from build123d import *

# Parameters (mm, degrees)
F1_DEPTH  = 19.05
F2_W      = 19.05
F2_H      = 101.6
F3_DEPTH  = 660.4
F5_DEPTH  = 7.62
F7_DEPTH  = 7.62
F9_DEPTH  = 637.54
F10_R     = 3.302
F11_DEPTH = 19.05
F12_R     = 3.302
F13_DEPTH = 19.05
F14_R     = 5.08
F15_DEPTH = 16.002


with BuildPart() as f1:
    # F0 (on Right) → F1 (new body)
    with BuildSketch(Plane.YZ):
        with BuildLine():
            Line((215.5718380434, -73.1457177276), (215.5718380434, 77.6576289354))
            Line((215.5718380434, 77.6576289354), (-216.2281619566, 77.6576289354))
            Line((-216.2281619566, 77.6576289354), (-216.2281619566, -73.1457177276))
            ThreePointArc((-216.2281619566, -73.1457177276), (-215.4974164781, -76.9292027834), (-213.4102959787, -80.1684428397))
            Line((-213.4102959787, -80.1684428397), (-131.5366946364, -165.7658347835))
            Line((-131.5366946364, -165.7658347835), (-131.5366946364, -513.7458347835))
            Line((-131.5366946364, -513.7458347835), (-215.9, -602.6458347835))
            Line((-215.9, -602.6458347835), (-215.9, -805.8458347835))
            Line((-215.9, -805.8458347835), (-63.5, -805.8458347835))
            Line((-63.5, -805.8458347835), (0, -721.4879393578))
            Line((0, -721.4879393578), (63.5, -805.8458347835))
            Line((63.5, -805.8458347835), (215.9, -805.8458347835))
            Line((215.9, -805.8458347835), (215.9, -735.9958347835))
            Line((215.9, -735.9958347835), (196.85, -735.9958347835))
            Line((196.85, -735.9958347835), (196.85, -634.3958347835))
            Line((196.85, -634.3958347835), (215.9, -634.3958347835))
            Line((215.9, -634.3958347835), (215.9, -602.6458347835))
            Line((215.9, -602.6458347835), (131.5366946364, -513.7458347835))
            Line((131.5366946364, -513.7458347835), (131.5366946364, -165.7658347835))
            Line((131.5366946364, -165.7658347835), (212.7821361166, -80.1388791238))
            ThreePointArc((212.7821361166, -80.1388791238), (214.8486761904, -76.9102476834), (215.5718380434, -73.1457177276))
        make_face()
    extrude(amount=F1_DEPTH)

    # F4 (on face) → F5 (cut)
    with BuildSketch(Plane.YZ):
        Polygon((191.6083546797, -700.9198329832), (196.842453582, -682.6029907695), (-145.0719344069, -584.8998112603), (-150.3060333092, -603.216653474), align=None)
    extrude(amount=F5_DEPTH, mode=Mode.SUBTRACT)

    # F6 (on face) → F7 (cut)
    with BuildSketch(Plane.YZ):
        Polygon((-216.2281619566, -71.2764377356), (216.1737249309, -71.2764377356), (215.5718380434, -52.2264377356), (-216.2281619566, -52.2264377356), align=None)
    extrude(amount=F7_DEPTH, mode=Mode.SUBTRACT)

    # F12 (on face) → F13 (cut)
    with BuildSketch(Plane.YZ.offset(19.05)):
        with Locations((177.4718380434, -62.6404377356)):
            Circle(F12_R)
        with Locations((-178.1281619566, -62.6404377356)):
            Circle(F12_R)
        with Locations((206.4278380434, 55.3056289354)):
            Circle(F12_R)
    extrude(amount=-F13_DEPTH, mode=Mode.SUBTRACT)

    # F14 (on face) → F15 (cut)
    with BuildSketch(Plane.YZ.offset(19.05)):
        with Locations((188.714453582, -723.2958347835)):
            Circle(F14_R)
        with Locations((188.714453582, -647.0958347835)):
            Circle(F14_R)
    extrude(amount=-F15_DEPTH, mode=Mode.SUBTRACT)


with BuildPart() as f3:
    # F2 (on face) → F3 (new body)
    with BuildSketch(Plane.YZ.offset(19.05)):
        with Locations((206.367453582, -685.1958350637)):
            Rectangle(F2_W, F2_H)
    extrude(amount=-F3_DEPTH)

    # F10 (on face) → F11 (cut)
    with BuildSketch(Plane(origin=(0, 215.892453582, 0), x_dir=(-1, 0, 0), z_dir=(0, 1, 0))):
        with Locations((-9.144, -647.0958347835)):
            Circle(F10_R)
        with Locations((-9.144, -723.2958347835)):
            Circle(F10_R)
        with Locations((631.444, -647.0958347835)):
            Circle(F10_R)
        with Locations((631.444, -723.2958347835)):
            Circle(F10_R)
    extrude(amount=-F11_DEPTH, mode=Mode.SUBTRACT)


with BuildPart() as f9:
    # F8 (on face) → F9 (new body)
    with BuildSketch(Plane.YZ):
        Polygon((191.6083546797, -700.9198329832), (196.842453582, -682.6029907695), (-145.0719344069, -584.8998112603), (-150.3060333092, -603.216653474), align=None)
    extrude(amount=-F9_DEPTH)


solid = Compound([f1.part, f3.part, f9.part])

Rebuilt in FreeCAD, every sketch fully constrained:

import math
import FreeCAD as App
import Part
import Sketcher

V = App.Vector
Q = App.Units.Quantity

doc = App.newDocument("Part")
body = doc.addObject("PartDesign::Body", "Body")

sketch1 = body.newObject("Sketcher::SketchObject", "Sketch")
sketch1.AttachmentSupport = (doc.getObject("YZ_Plane"), [""])
sketch1.MapMode = "FlatFace"
sketch1.addGeometry(Part.LineSegment(V(215.571838, -73.145718, 0), V(215.571838, 77.657629, 0)), False)
sketch1.addGeometry(Part.LineSegment(V(215.571838, 77.657629, 0), V(-216.228162, 77.657629, 0)), False)
sketch1.addGeometry(Part.LineSegment(V(-216.228162, 77.657629, 0), V(-216.228162, -73.145718, 0)), False)
sketch1.addGeometry(Part.ArcOfCircle(Part.Circle(V(-206.068162, -73.145718, 0), V(0, 0, 1), 10.16), math.radians(-180), math.radians(-136.273787)), False)
sketch1.addGeometry(Part.LineSegment(V(-213.410296, -80.168443, 0), V(-131.536695, -165.765835, 0)), False)
sketch1.addGeometry(Part.LineSegment(V(-131.536695, -165.765835, 0), V(-131.536695, -513.745835, 0)), False)
sketch1.addGeometry(Part.LineSegment(V(-131.536695, -513.745835, 0), V(-215.9, -602.645835, 0)), False)
sketch1.addGeometry(Part.LineSegment(V(-215.9, -602.645835, 0), V(-215.9, -805.845835, 0)), False)
sketch1.addGeometry(Part.LineSegment(V(-215.9, -805.845835, 0), V(-63.5, -805.845835, 0)), False)
sketch1.addGeometry(Part.LineSegment(V(-63.5, -805.845835, 0), V(0, -721.487939, 0)), False)
sketch1.addGeometry(Part.LineSegment(V(0, -721.487939, 0), V(63.5, -805.845835, 0)), False)
sketch1.addGeometry(Part.LineSegment(V(63.5, -805.845835, 0), V(215.9, -805.845835, 0)), False)
sketch1.addGeometry(Part.LineSegment(V(215.9, -805.845835, 0), V(215.9, -735.995835, 0)), False)
sketch1.addGeometry(Part.LineSegment(V(215.9, -735.995835, 0), V(196.85, -735.995835, 0)), False)
sketch1.addGeometry(Part.LineSegment(V(196.85, -735.995835, 0), V(196.85, -634.395835, 0)), False)
sketch1.addGeometry(Part.LineSegment(V(196.85, -634.395835, 0), V(215.9, -634.395835, 0)), False)
sketch1.addGeometry(Part.LineSegment(V(215.9, -634.395835, 0), V(215.9, -602.645835, 0)), False)
sketch1.addGeometry(Part.LineSegment(V(215.9, -602.645835, 0), V(131.536695, -513.745835, 0)), False)
sketch1.addGeometry(Part.LineSegment(V(131.536695, -513.745835, 0), V(131.536695, -165.765835, 0)), False)
sketch1.addGeometry(Part.LineSegment(V(131.536695, -165.765835, 0), V(212.782136, -80.138879, 0)), False)
sketch1.addGeometry(Part.ArcOfCircle(Part.Circle(V(205.411838, -73.145718, 0), V(0, 0, 1), 10.16), math.radians(-43.495949), math.radians(0)), False)
sketch1.addConstraint(Sketcher.Constraint("Coincident", 0, 2, 1, 1))
sketch1.addConstraint(Sketcher.Constraint("Coincident", 1, 2, 2, 1))
sketch1.addConstraint(Sketcher.Constraint("Tangent", 2, 2, 3, 1))
sketch1.addConstraint(Sketcher.Constraint("Tangent", 3, 2, 4, 1))
sketch1.addConstraint(Sketcher.Constraint("Coincident", 4, 2, 5, 1))
sketch1.addConstraint(Sketcher.Constraint("Coincident", 5, 2, 6, 1))
sketch1.addConstraint(Sketcher.Constraint("Coincident", 6, 2, 7, 1))
sketch1.addConstraint(Sketcher.Constraint("Coincident", 7, 2, 8, 1))
sketch1.addConstraint(Sketcher.Constraint("Coincident", 8, 2, 9, 1))
sketch1.addConstraint(Sketcher.Constraint("Coincident", 9, 2, 10, 1))
sketch1.addConstraint(Sketcher.Constraint("Coincident", 10, 2, 11, 1))
sketch1.addConstraint(Sketcher.Constraint("Coincident", 11, 2, 12, 1))
sketch1.addConstraint(Sketcher.Constraint("Coincident", 12, 2, 13, 1))
sketch1.addConstraint(Sketcher.Constraint("Coincident", 13, 2, 14, 1))
sketch1.addConstraint(Sketcher.Constraint("Coincident", 14, 2, 15, 1))
sketch1.addConstraint(Sketcher.Constraint("Coincident", 15, 2, 16, 1))
sketch1.addConstraint(Sketcher.Constraint("Coincident", 16, 2, 17, 1))
sketch1.addConstraint(Sketcher.Constraint("Coincident", 17, 2, 18, 1))
sketch1.addConstraint(Sketcher.Constraint("Coincident", 18, 2, 19, 1))
sketch1.addConstraint(Sketcher.Constraint("Tangent", 19, 2, 20, 1))
sketch1.addConstraint(Sketcher.Constraint("Tangent", 20, 2, 0, 1))
sketch1.addConstraint(Sketcher.Constraint("Vertical", 0))
sketch1.addConstraint(Sketcher.Constraint("Horizontal", 1))
sketch1.addConstraint(Sketcher.Constraint("Vertical", 2))
sketch1.addConstraint(Sketcher.Constraint("Vertical", 5))
sketch1.addConstraint(Sketcher.Constraint("Vertical", 7))
sketch1.addConstraint(Sketcher.Constraint("Horizontal", 8))
sketch1.addConstraint(Sketcher.Constraint("Horizontal", 11))
sketch1.addConstraint(Sketcher.Constraint("Vertical", 12))
sketch1.addConstraint(Sketcher.Constraint("Horizontal", 13))
sketch1.addConstraint(Sketcher.Constraint("Vertical", 14))
sketch1.addConstraint(Sketcher.Constraint("Horizontal", 15))
sketch1.addConstraint(Sketcher.Constraint("Vertical", 16))
sketch1.addConstraint(Sketcher.Constraint("Vertical", 18))
sketch1.addConstraint(Sketcher.Constraint("Equal", 3, 20))
sketch1.addConstraint(Sketcher.Constraint("Symmetric", 8, 2, 10, 2, -2))
sketch1.addConstraint(Sketcher.Constraint("Symmetric", 6, 2, 16, 2, -2))
sketch1.addConstraint(Sketcher.Constraint("Symmetric", 5, 2, 17, 2, -2))
sketch1.addConstraint(Sketcher.Constraint("PointOnObject", 9, 2, -2))
sketch1.addConstraint(Sketcher.Constraint("Horizontal", 3, 3, 20, 3))
sketch1.addConstraint(Sketcher.Constraint("Horizontal", 4, 2, 18, 2))
sketch1.addConstraint(Sketcher.Constraint("Vertical", 12, 2, 15, 2))
sketch1.addConstraint(Sketcher.Constraint("Radius", 3, Q("0.4 in")))
sketch1.addConstraint(Sketcher.Constraint("DistanceX", 1, 2, 1, 1, Q("17 in")))
sketch1.addConstraint(Sketcher.Constraint("DistanceX", 8, 1, 8, 2, Q("6 in")))
sketch1.addConstraint(Sketcher.Constraint("DistanceY", 7, 2, 7, 1, Q("8 in")))
sketch1.addConstraint(Sketcher.Constraint("DistanceY", 14, 1, 14, 2, Q("4 in")))
sketch1.addConstraint(Sketcher.Constraint("DistanceY", 5, 2, 5, 1, Q("13.7 in")))
sketch1.addConstraint(Sketcher.Constraint("DistanceX", 8, 2, 10, 2, Q("5 in")))
sketch1.addConstraint(Sketcher.Constraint("DistanceX", 13, 2, 13, 1, Q("0.75 in")))
sketch1.addConstraint(Sketcher.Constraint("DistanceY", 12, 1, 12, 2, Q("2.75 in")))
sketch1.addConstraint(Sketcher.Constraint("DistanceY", 6, 2, 5, 2, Q("3.5 in")))
sketch1.addConstraint(Sketcher.Constraint("DistanceX", 3, 2, 4, 2, Q("81.873601 mm")))
sketch1.addConstraint(Sketcher.Constraint("DistanceX", 20, 3, 19, 2, Q("7.370298 mm")))
sketch1.addConstraint(Sketcher.Constraint("Distance", 6, Q("122.557649 mm")))
sketch1.addConstraint(Sketcher.Constraint("Distance", 9, Q("105.586479 mm")))
sketch1.addConstraint(Sketcher.Constraint("DistanceY", 0, 1, 0, 2, Q("150.803347 mm")))
sketch1.addConstraint(Sketcher.Constraint("DistanceY", -1, 1, 0, 2, Q("77.657629 mm")))
pad1 = body.newObject("PartDesign::Pad", "Pad")
pad1.Profile = sketch1
pad1.Length = Q("0.75 in")

sketch2 = body.newObject("Sketcher::SketchObject", "Sketch001")
sketch2.AttachmentSupport = (doc.getObject("YZ_Plane"), [""])
sketch2.MapMode = "FlatFace"
sketch2.addGeometry(Part.LineSegment(V(191.608355, -700.919833, 0), V(196.842454, -682.602991, 0)), False)
sketch2.addGeometry(Part.LineSegment(V(196.842454, -682.602991, 0), V(-145.071934, -584.899811, 0)), False)
sketch2.addGeometry(Part.LineSegment(V(-145.071934, -584.899811, 0), V(-150.306033, -603.216653, 0)), False)
sketch2.addGeometry(Part.LineSegment(V(-150.306033, -603.216653, 0), V(191.608355, -700.919833, 0)), False)
sketch2.addConstraint(Sketcher.Constraint("Coincident", 0, 2, 1, 1))
sketch2.addConstraint(Sketcher.Constraint("Coincident", 1, 2, 2, 1))
sketch2.addConstraint(Sketcher.Constraint("Coincident", 2, 2, 3, 1))
sketch2.addConstraint(Sketcher.Constraint("Coincident", 3, 2, 0, 1))
sketch2.addConstraint(Sketcher.Constraint("Perpendicular", 0, 1))
sketch2.addConstraint(Sketcher.Constraint("Perpendicular", 1, 2))
sketch2.addConstraint(Sketcher.Constraint("Perpendicular", 2, 3))
sketch2.addConstraint(Sketcher.Constraint("Distance", 1, Q("14 in")))
sketch2.addConstraint(Sketcher.Constraint("Distance", 0, Q("0.75 in")))
sketch2.addConstraint(Sketcher.Constraint("DistanceX", 2, 2, 1, 2, Q("5.234099 mm")))
sketch2.addConstraint(Sketcher.Constraint("DistanceY", 0, 2, -1, 1, Q("682.602991 mm")))
sketch2.addConstraint(Sketcher.Constraint("DistanceX", -1, 1, 0, 2, Q("196.842454 mm")))
pocket1 = body.newObject("PartDesign::Pocket", "Pocket")
pocket1.Profile = sketch2
pocket1.Length = Q("0.3 in")
pocket1.Reversed = True

sketch3 = body.newObject("Sketcher::SketchObject", "Sketch002")
sketch3.AttachmentSupport = (doc.getObject("YZ_Plane"), [""])
sketch3.MapMode = "FlatFace"
sketch3.addGeometry(Part.LineSegment(V(-216.228162, -71.276438, 0), V(216.173725, -71.276438, 0)), False)
sketch3.addGeometry(Part.LineSegment(V(216.173725, -71.276438, 0), V(215.571838, -52.226438, 0)), False)
sketch3.addGeometry(Part.LineSegment(V(215.571838, -52.226438, 0), V(-216.228162, -52.226438, 0)), False)
sketch3.addGeometry(Part.LineSegment(V(-216.228162, -52.226438, 0), V(-216.228162, -71.276438, 0)), False)
sketch3.addConstraint(Sketcher.Constraint("Coincident", 0, 2, 1, 1))
sketch3.addConstraint(Sketcher.Constraint("Coincident", 1, 2, 2, 1))
sketch3.addConstraint(Sketcher.Constraint("Coincident", 2, 2, 3, 1))
sketch3.addConstraint(Sketcher.Constraint("Coincident", 3, 2, 0, 1))
sketch3.addConstraint(Sketcher.Constraint("Horizontal", 0))
sketch3.addConstraint(Sketcher.Constraint("Horizontal", 2))
sketch3.addConstraint(Sketcher.Constraint("Vertical", 3))
sketch3.addConstraint(Sketcher.Constraint("DistanceX", 2, 2, 2, 1, Q("17 in")))
sketch3.addConstraint(Sketcher.Constraint("DistanceY", 3, 2, 3, 1, Q("0.75 in")))
sketch3.addConstraint(Sketcher.Constraint("DistanceX", 0, 1, 0, 2, Q("432.401887 mm")))
sketch3.addConstraint(Sketcher.Constraint("DistanceX", -1, 1, 1, 2, Q("215.571838 mm")))
sketch3.addConstraint(Sketcher.Constraint("DistanceY", 0, 2, -1, 1, Q("71.276438 mm")))
pocket2 = body.newObject("PartDesign::Pocket", "Pocket001")
pocket2.Profile = sketch3
pocket2.Length = Q("0.3 in")
pocket2.Reversed = True

sketch4 = body.newObject("Sketcher::SketchObject", "Sketch003")
sketch4.AttachmentSupport = (doc.getObject("YZ_Plane"), [""])
sketch4.MapMode = "FlatFace"
sketch4.AttachmentOffset = App.Placement(V(0, 0, 0.75 * 25.4), App.Rotation())
sketch4.addGeometry(Part.Circle(V(177.471838, -62.640438, 0), V(0, 0, 1), 3.302), False)
sketch4.addGeometry(Part.Circle(V(-178.128162, -62.640438, 0), V(0, 0, 1), 3.302), False)
sketch4.addGeometry(Part.Circle(V(206.427838, 55.305629, 0), V(0, 0, 1), 3.302), False)
sketch4.addConstraint(Sketcher.Constraint("Equal", 0, 1))
sketch4.addConstraint(Sketcher.Constraint("Equal", 1, 2))
sketch4.addConstraint(Sketcher.Constraint("Horizontal", 0, 3, 1, 3))
sketch4.addConstraint(Sketcher.Constraint("Diameter", 0, Q("0.26 in")))
sketch4.addConstraint(Sketcher.Constraint("DistanceX", 1, 3, 0, 3, Q("14 in")))
sketch4.addConstraint(Sketcher.Constraint("DistanceX", 0, 3, 2, 3, Q("1.14 in")))
sketch4.addConstraint(Sketcher.Constraint("DistanceX", -1, 1, 0, 3, Q("177.471838 mm")))
sketch4.addConstraint(Sketcher.Constraint("DistanceY", -1, 1, 2, 3, Q("55.305629 mm")))
sketch4.addConstraint(Sketcher.Constraint("DistanceY", 0, 3, -1, 1, Q("62.640438 mm")))
pocket3 = body.newObject("PartDesign::Pocket", "Pocket002")
pocket3.Profile = sketch4
pocket3.Length = Q("0.75 in")

sketch5 = body.newObject("Sketcher::SketchObject", "Sketch004")
sketch5.AttachmentSupport = (doc.getObject("YZ_Plane"), [""])
sketch5.MapMode = "FlatFace"
sketch5.AttachmentOffset = App.Placement(V(0, 0, 0.75 * 25.4), App.Rotation())
sketch5.addGeometry(Part.Circle(V(188.714454, -723.295835, 0), V(0, 0, 1), 5.08), False)
sketch5.addGeometry(Part.Circle(V(188.714454, -647.095835, 0), V(0, 0, 1), 5.08), False)
sketch5.addConstraint(Sketcher.Constraint("Equal", 0, 1))
sketch5.addConstraint(Sketcher.Constraint("Vertical", 0, 3, 1, 3))
sketch5.addConstraint(Sketcher.Constraint("Diameter", 0, Q("0.4 in")))
sketch5.addConstraint(Sketcher.Constraint("DistanceY", 0, 3, 1, 3, Q("3 in")))
sketch5.addConstraint(Sketcher.Constraint("DistanceX", -1, 1, 0, 3, Q("188.714454 mm")))
sketch5.addConstraint(Sketcher.Constraint("DistanceY", 0, 3, -1, 1, Q("723.295835 mm")))
pocket4 = body.newObject("PartDesign::Pocket", "Pocket003")
pocket4.Profile = sketch5
pocket4.Length = Q("0.63 in")
body2 = doc.addObject("PartDesign::Body", "Body001")

sketch6 = body2.newObject("Sketcher::SketchObject", "Sketch005")
sketch6.AttachmentSupport = (doc.getObject("YZ_Plane001"), [""])
sketch6.MapMode = "FlatFace"
sketch6.AttachmentOffset = App.Placement(V(0, 0, 0.75 * 25.4), App.Rotation())
sketch6.addGeometry(Part.LineSegment(V(196.842454, -634.395835, 0), V(196.842454, -735.995835, 0)), False)
sketch6.addGeometry(Part.LineSegment(V(196.842454, -735.995835, 0), V(215.892454, -735.995835, 0)), False)
sketch6.addGeometry(Part.LineSegment(V(215.892454, -735.995835, 0), V(215.892454, -634.395835, 0)), False)
sketch6.addGeometry(Part.LineSegment(V(215.892454, -634.395835, 0), V(196.842454, -634.395835, 0)), False)
sketch6.addConstraint(Sketcher.Constraint("Coincident", 0, 2, 1, 1))
sketch6.addConstraint(Sketcher.Constraint("Coincident", 1, 2, 2, 1))
sketch6.addConstraint(Sketcher.Constraint("Coincident", 2, 2, 3, 1))
sketch6.addConstraint(Sketcher.Constraint("Coincident", 3, 2, 0, 1))
sketch6.addConstraint(Sketcher.Constraint("Vertical", 0))
sketch6.addConstraint(Sketcher.Constraint("Horizontal", 1))
sketch6.addConstraint(Sketcher.Constraint("Vertical", 2))
sketch6.addConstraint(Sketcher.Constraint("Horizontal", 3))
sketch6.addConstraint(Sketcher.Constraint("DistanceY", 0, 2, 0, 1, Q("4 in")))
sketch6.addConstraint(Sketcher.Constraint("DistanceX", 1, 1, 1, 2, Q("0.75 in")))
sketch6.addConstraint(Sketcher.Constraint("DistanceX", -1, 1, 0, 2, Q("196.842454 mm")))
sketch6.addConstraint(Sketcher.Constraint("DistanceY", 0, 2, -1, 1, Q("735.995835 mm")))
pad2 = body2.newObject("PartDesign::Pad", "Pad001")
pad2.Profile = sketch6
pad2.Length = Q("26 in")
pad2.Reversed = True

sketch7 = body2.newObject("Sketcher::SketchObject", "Sketch006")
sketch7.AttachmentSupport = (doc.getObject("XZ_Plane001"), [""])
sketch7.MapMode = "FlatFace"
sketch7.AttachmentOffset = App.Placement(V(0, 0, -215.892454), App.Rotation())
sketch7.addGeometry(Part.Circle(V(9.144, -647.095835, 0), V(0, 0, 1), 3.302), False)
sketch7.addGeometry(Part.Circle(V(9.144, -723.295835, 0), V(0, 0, 1), 3.302), False)
sketch7.addGeometry(Part.Circle(V(-631.444, -647.095835, 0), V(0, 0, 1), 3.302), False)
sketch7.addGeometry(Part.Circle(V(-631.444, -723.295835, 0), V(0, 0, 1), 3.302), False)
sketch7.addConstraint(Sketcher.Constraint("Equal", 0, 1))
sketch7.addConstraint(Sketcher.Constraint("Equal", 1, 2))
sketch7.addConstraint(Sketcher.Constraint("Equal", 2, 3))
sketch7.addConstraint(Sketcher.Constraint("Horizontal", 0, 3, 2, 3))
sketch7.addConstraint(Sketcher.Constraint("Horizontal", 1, 3, 3, 3))
sketch7.addConstraint(Sketcher.Constraint("Vertical", 0, 3, 1, 3))
sketch7.addConstraint(Sketcher.Constraint("Vertical", 2, 3, 3, 3))
sketch7.addConstraint(Sketcher.Constraint("Diameter", 0, Q("0.26 in")))
sketch7.addConstraint(Sketcher.Constraint("DistanceY", 1, 3, 0, 3, Q("3 in")))
sketch7.addConstraint(Sketcher.Constraint("DistanceX", -1, 1, 0, 3, Q("0.36 in")))
sketch7.addConstraint(Sketcher.Constraint("DistanceX", 2, 3, -1, 1, Q("24.86 in")))
sketch7.addConstraint(Sketcher.Constraint("DistanceY", 0, 3, -1, 1, Q("647.095835 mm")))
pocket5 = body2.newObject("PartDesign::Pocket", "Pocket004")
pocket5.Profile = sketch7
pocket5.Length = Q("0.75 in")
pocket5.Reversed = True
body3 = doc.addObject("PartDesign::Body", "Body002")

sketch8 = body3.newObject("Sketcher::SketchObject", "Sketch007")
sketch8.AttachmentSupport = (doc.getObject("YZ_Plane002"), [""])
sketch8.MapMode = "FlatFace"
sketch8.addGeometry(Part.LineSegment(V(191.608355, -700.919833, 0), V(196.842454, -682.602991, 0)), False)
sketch8.addGeometry(Part.LineSegment(V(196.842454, -682.602991, 0), V(-145.071934, -584.899811, 0)), False)
sketch8.addGeometry(Part.LineSegment(V(-145.071934, -584.899811, 0), V(-150.306033, -603.216653, 0)), False)
sketch8.addGeometry(Part.LineSegment(V(-150.306033, -603.216653, 0), V(191.608355, -700.919833, 0)), False)
sketch8.addConstraint(Sketcher.Constraint("Coincident", 0, 2, 1, 1))
sketch8.addConstraint(Sketcher.Constraint("Coincident", 1, 2, 2, 1))
sketch8.addConstraint(Sketcher.Constraint("Coincident", 2, 2, 3, 1))
sketch8.addConstraint(Sketcher.Constraint("Coincident", 3, 2, 0, 1))
sketch8.addConstraint(Sketcher.Constraint("Perpendicular", 0, 1))
sketch8.addConstraint(Sketcher.Constraint("Perpendicular", 1, 2))
sketch8.addConstraint(Sketcher.Constraint("Perpendicular", 2, 3))
sketch8.addConstraint(Sketcher.Constraint("Distance", 1, Q("14 in")))
sketch8.addConstraint(Sketcher.Constraint("Distance", 0, Q("0.75 in")))
sketch8.addConstraint(Sketcher.Constraint("DistanceX", 2, 2, 1, 2, Q("5.234099 mm")))
sketch8.addConstraint(Sketcher.Constraint("DistanceY", 0, 2, -1, 1, Q("682.602991 mm")))
sketch8.addConstraint(Sketcher.Constraint("DistanceX", -1, 1, 0, 2, Q("196.842454 mm")))
pad3 = body3.newObject("PartDesign::Pad", "Pad002")
pad3.Profile = sketch8
pad3.Length = Q("25.1 in")
pad3.Reversed = True

doc.recompute()
